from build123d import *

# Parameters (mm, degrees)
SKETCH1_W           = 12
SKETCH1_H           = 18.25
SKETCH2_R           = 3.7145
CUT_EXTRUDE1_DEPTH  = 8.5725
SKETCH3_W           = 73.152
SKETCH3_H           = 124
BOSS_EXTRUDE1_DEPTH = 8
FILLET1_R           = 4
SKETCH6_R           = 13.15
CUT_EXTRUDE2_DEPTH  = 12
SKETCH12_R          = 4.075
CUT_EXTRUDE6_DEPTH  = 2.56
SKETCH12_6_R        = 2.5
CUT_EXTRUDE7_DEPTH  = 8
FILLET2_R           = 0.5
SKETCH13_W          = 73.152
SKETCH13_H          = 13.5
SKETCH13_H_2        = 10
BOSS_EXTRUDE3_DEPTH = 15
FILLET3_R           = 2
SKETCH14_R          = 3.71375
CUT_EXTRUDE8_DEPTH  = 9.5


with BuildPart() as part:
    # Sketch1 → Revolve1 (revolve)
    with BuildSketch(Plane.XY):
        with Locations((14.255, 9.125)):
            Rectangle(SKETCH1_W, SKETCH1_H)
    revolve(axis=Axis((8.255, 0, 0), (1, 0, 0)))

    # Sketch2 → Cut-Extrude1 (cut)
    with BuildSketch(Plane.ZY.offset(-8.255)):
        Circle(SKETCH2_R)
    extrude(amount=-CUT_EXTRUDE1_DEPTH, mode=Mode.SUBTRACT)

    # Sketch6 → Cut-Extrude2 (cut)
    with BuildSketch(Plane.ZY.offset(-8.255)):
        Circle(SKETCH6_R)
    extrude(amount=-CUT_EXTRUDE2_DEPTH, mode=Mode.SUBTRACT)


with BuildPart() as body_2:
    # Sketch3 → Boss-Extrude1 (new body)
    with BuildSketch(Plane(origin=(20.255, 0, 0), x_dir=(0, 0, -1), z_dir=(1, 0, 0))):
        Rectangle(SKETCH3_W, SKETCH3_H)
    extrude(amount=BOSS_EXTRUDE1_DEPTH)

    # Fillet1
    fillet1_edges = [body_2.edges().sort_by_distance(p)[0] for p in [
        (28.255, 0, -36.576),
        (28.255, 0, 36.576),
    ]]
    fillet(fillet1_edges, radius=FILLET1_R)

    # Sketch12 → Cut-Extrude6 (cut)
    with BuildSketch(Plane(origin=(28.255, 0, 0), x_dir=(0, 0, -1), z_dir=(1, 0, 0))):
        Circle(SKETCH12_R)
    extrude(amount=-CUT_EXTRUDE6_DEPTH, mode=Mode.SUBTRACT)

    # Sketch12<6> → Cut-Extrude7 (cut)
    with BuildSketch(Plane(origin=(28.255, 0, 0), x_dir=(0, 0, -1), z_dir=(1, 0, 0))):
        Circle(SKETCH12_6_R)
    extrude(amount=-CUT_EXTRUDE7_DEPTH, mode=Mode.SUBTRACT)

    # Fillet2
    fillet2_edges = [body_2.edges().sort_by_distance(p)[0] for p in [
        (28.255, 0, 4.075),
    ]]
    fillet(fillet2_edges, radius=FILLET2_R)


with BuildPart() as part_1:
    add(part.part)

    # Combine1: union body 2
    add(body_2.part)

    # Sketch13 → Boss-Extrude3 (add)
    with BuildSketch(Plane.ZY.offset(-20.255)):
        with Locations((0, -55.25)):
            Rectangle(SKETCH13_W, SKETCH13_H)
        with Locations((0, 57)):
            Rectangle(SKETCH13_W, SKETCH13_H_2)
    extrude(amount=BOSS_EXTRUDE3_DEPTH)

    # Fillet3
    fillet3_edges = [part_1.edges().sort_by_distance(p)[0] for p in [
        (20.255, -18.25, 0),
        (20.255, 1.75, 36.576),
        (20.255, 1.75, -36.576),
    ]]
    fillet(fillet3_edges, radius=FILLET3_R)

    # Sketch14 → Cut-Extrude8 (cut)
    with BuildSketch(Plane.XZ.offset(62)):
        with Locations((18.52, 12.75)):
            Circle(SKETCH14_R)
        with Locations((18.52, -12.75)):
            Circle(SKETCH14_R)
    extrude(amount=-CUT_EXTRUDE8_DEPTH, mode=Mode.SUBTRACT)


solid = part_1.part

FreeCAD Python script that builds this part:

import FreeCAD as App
import Part
import Sketcher


def edges_at(feature, points):
    """Names of the edges that pass closest to the given points."""
    edges = feature.Shape.Edges
    near = lambda p: min(range(len(edges)), key=lambda i: edges[i].distToShape(Part.Vertex(*p))[0])
    return sorted({f"Edge{near(p) + 1}" for p in points})


def add_polygon(sketch, points):
    """Adds a closed chain of lines whose ends are joined by coincident constraints."""
    first, n = sketch.GeometryCount, len(points)
    for a, b in zip(points, points[1:] + points[:1]):
        sketch.addGeometry(Part.LineSegment(App.Vector(*a, 0), App.Vector(*b, 0)), False)
    for i in range(n):
        sketch.addConstraint(Sketcher.Constraint("Coincident", first + i, 2, first + (i + 1) % n, 1))

doc = App.newDocument("Part")
params = doc.addObject("Spreadsheet::Sheet", "Params")
for row, (alias, value) in enumerate([
    ("sketch1_width", "12 mm"),
    ("sketch1_height", "18.25 mm"),
    ("revolution_angle", "360 deg"),
    ("pocket1_length", "8.5725 mm"),
    ("sketch3_diameter", "26.3 mm"),
    ("pocket2_length", "12 mm"),
    ("sketch4_width", "124 mm"),
    ("pad1_length", "8 mm"),
    ("fillet_radius", "4 mm"),
    ("sketch5_diameter", "8.15 mm"),
    ("pocket3_length", "2.56 mm"),
    ("sketch6_diameter", "5 mm"),
    ("pocket4_length", "8 mm"),
    ("fillet2_radius", "0.5 mm"),
    ("sketch7_width", "10 mm"),
    ("sketch7_width2", "13.5 mm"),
    ("pad2_length", "15 mm"),
    ("fillet3_radius", "2 mm"),
    ("pocket5_length", "9.5 mm"),
], start=1):
    params.set(f"A{row}", alias)
    params.set(f"B{row}", "=" + value)
    params.setAlias(f"B{row}", alias)

body = doc.addObject("PartDesign::Body", "Body")

# Sketch on XY plane
sketch1 = body.newObject("Sketcher::SketchObject", "Sketch")
sketch1.AttachmentSupport = (doc.getObject("XY_Plane"), [""])
sketch1.MapMode = "FlatFace"
add_polygon(sketch1, [(8, 18), (8, 0), (20, 0), (20, 18)])  # lines 0-3
sketch1.addConstraint([
    Sketcher.Constraint("Vertical", 0),
    Sketcher.Constraint("Horizontal", 1),
    Sketcher.Constraint("Vertical", 2),
    Sketcher.Constraint("Horizontal", 3),
    Sketcher.Constraint("PointOnObject", 0, 2, -1),
    Sketcher.Constraint("DistanceX", 1, 1, 1, 2, 12.0),
    Sketcher.Constraint("DistanceY", 0, 2, 0, 1, 18.25),
    Sketcher.Constraint("DistanceX", -1, 1, 0, 2, 8.255),
])
sketch1.setExpression("Constraints[9]", "Params.sketch1_width")
sketch1.setExpression("Constraints[10]", "Params.sketch1_height")
revolution = body.newObject("PartDesign::Revolution", "Revolution")
revolution.Profile = sketch1
revolution.ReferenceAxis = (sketch1, ["H_Axis"])
revolution.setExpression("Angle", "Params.revolution_angle")

# Sketch on YZ plane
sketch2 = body.newObject("Sketcher::SketchObject", "Sketch001")
sketch2.AttachmentSupport = (doc.getObject("YZ_Plane"), [""])
sketch2.MapMode = "FlatFace"
sketch2.AttachmentOffset = App.Placement(App.Vector(0, 0, 8.255), App.Rotation())
sketch2.addGeometry(Part.Circle(App.Vector(0, 0, 0), App.Vector(0, 0, 1), 3.7), False)
sketch2.addConstraint([
    Sketcher.Constraint("Coincident", 0, 3, -1, 1),
    Sketcher.Constraint("Diameter", 0, 7.429),
])
pocket1 = body.newObject("PartDesign::Pocket", "Pocket")
pocket1.Profile = sketch2
pocket1.setExpression("Length", "Params.pocket1_length")
pocket1.Reversed = True

# Sketch on YZ plane
sketch3 = body.newObject("Sketcher::SketchObject", "Sketch002")
sketch3.AttachmentSupport = (doc.getObject("YZ_Plane"), [""])
sketch3.MapMode = "FlatFace"
sketch3.AttachmentOffset = App.Placement(App.Vector(0, 0, 8.255), App.Rotation())
sketch3.addGeometry(Part.Circle(App.Vector(0, 0, 0), App.Vector(0, 0, 1), 13), False)
sketch3.addConstraint([
    Sketcher.Constraint("Coincident", 0, 3, -1, 1),
    Sketcher.Constraint("Diameter", 0, 26.3),
])
sketch3.setExpression("Constraints[1]", "Params.sketch3_diameter")
pocket2 = body.newObject("PartDesign::Pocket", "Pocket001")
pocket2.Profile = sketch3
pocket2.setExpression("Length", "Params.pocket2_length")
pocket2.Reversed = True
body2 = doc.addObject("PartDesign::Body", "Body001")

# Sketch on YZ plane
sketch4 = body2.newObject("Sketcher::SketchObject", "Sketch003")
sketch4.AttachmentSupport = (doc.getObject("YZ_Plane001"), [""])
sketch4.MapMode = "FlatFace"
sketch4.AttachmentOffset = App.Placement(App.Vector(0, 0, 20.255), App.Rotation())
add_polygon(sketch4, [(62, 37), (-62, 37), (-62, -37), (62, -37)])  # lines 0-3
sketch4.addConstraint([
    Sketcher.Constraint("Horizontal", 0),
    Sketcher.Constraint("Vertical", 1),
    Sketcher.Constraint("Horizontal", 2),
    Sketcher.Constraint("Vertical", 3),
    Sketcher.Constraint("Symmetric", 0, 2, 2, 2, -1, 1),
    Sketcher.Constraint("DistanceX", 0, 2, 0, 1, 124.0),
    Sketcher.Constraint("DistanceY", 1, 2, 1, 1, 73.152),
])
sketch4.setExpression("Constraints[9]", "Params.sketch4_width")
pad1 = body2.newObject("PartDesign::Pad", "Pad")
pad1.Profile = sketch4
pad1.setExpression("Length", "Params.pad1_length")
doc.recompute()

fillet = body2.newObject("PartDesign::Fillet", "Fillet")
fillet.Base = (pad1, edges_at(pad1, [(28.255, 0, -36.576), (28.255, 0, 36.576)]))
fillet.setExpression("Radius", "Params.fillet_radius")

# Sketch on YZ plane
sketch5 = body2.newObject("Sketcher::SketchObject", "Sketch004")
sketch5.AttachmentSupport = (doc.getObject("YZ_Plane001"), [""])
sketch5.MapMode = "FlatFace"
sketch5.AttachmentOffset = App.Placement(App.Vector(0, 0, 28.255), App.Rotation())
sketch5.addGeometry(Part.Circle(App.Vector(0, 0, 0), App.Vector(0, 0, 1), 4.1), False)
sketch5.addConstraint([
    Sketcher.Constraint("Coincident", 0, 3, -1, 1),
    Sketcher.Constraint("Diameter", 0, 8.15),
])
sketch5.setExpression("Constraints[1]", "Params.sketch5_diameter")
pocket3 = body2.newObject("PartDesign::Pocket", "Pocket002")
pocket3.Profile = sketch5
pocket3.setExpression("Length", "Params.pocket3_length")

# Sketch on YZ plane
sketch6 = body2.newObject("Sketcher::SketchObject", "Sketch005")
sketch6.AttachmentSupport = (doc.getObject("YZ_Plane001"), [""])
sketch6.MapMode = "FlatFace"
sketch6.AttachmentOffset = App.Placement(App.Vector(0, 0, 28.255), App.Rotation())
sketch6.addGeometry(Part.Circle(App.Vector(0, 0, 0), App.Vector(0, 0, 1), 2.5), False)
sketch6.addConstraint([
    Sketcher.Constraint("Coincident", 0, 3, -1, 1),
    Sketcher.Constraint("Diameter", 0, 5.0),
])
sketch6.setExpression("Constraints[1]", "Params.sketch6_diameter")
pocket4 = body2.newObject("PartDesign::Pocket", "Pocket003")
pocket4.Profile = sketch6
pocket4.setExpression("Length", "Params.pocket4_length")
doc.recompute()

fillet2 = body2.newObject("PartDesign::Fillet", "Fillet001")
fillet2.Base = (pocket4, edges_at(pocket4, [(28.255, 0, 4.075)]))
fillet2.setExpression("Radius", "Params.fillet2_radius")
doc.recompute()

boolean = body.newObject("PartDesign::Boolean", "Boolean")
boolean.Type = "Fuse"
boolean.addObjects([body2])

# Sketch on YZ plane
sketch7 = body.newObject("Sketcher::SketchObject", "Sketch006")
sketch7.AttachmentSupport = (doc.getObject("YZ_Plane"), [""])
sketch7.MapMode = "FlatFace"
sketch7.AttachmentOffset = App.Placement(App.Vector(0, 0, 20.255), App.Rotation())
add_polygon(sketch7, [(-48, -37), (-62, -37), (-62, 37), (-48, 37)])  # lines 0-3
add_polygon(sketch7, [(62, -37), (52, -37), (52, 37), (62, 37)])  # lines 4-7
sketch7.addConstraint([
    Sketcher.Constraint("Horizontal", 0),
    Sketcher.Constraint("Vertical", 1),
    Sketcher.Constraint("Horizontal", 2),
    Sketcher.Constraint("Vertical", 3),
    Sketcher.Constraint("Horizontal", 4),
    Sketcher.Constraint("Vertical", 5),
    Sketcher.Constraint("Horizontal", 6),
    Sketcher.Constraint("Vertical", 7),
    Sketcher.Constraint("Symmetric", 0, 2, 6, 2, -1, 1),
    Sketcher.Constraint("Horizontal", 3, 2, 4, 2),
    Sketcher.Constraint("Horizontal", 2, 2, 5, 2),
    Sketcher.Constraint("DistanceX", 4, 2, 4, 1, 10.0),
    Sketcher.Constraint("DistanceX", 0, 2, 0, 1, 13.5),
    Sketcher.Constraint("DistanceX", 0, 2, -1, 1, 62.0),
    Sketcher.Constraint("DistanceY", 1, 1, 1, 2, 73.152),
])
sketch7.setExpression("Constraints[19]", "Params.sketch7_width")
sketch7.setExpression("Constraints[20]", "Params.sketch7_width2")
pad2 = body.newObject("PartDesign::Pad", "Pad001")
pad2.Profile = sketch7
pad2.setExpression("Length", "Params.pad2_length")
pad2.Reversed = True
doc.recompute()

fillet3 = body.newObject("PartDesign::Fillet", "Fillet002")
fillet3.Base = (pad2, edges_at(pad2, [(20.255, -18.25, 0), (20.255, 1.75, 36.576), (20.255, 1.75, -36.576)]))
fillet3.setExpression("Radius", "Params.fillet3_radius")

# Sketch on XZ plane
sketch8 = body.newObject("Sketcher::SketchObject", "Sketch007")
sketch8.AttachmentSupport = (doc.getObject("XZ_Plane"), [""])
sketch8.MapMode = "FlatFace"
sketch8.AttachmentOffset = App.Placement(App.Vector(0, 0, 62), App.Rotation())
sketch8.addGeometry([
    Part.Circle(App.Vector(18.5, 12.8, 0), App.Vector(0, 0, 1), 3.7),
    Part.Circle(App.Vector(18.5, -12.8, 0), App.Vector(0, 0, 1), 3.7),
], False)
sketch8.addConstraint([
    Sketcher.Constraint("Equal", 0, 1),
    Sketcher.Constraint("Symmetric", 0, 3, 1, 3, -1),
    Sketcher.Constraint("Diameter", 0, 7.4275),
    Sketcher.Constraint("DistanceY", 1, 3, 0, 3, 25.5),
    Sketcher.Constraint("DistanceX", -1, 1, 0, 3, 18.52),
])
pocket5 = body.newObject("PartDesign::Pocket", "Pocket004")
pocket5.Profile = sketch8
pocket5.setExpression("Length", "Params.pocket5_length")

doc.recompute()
